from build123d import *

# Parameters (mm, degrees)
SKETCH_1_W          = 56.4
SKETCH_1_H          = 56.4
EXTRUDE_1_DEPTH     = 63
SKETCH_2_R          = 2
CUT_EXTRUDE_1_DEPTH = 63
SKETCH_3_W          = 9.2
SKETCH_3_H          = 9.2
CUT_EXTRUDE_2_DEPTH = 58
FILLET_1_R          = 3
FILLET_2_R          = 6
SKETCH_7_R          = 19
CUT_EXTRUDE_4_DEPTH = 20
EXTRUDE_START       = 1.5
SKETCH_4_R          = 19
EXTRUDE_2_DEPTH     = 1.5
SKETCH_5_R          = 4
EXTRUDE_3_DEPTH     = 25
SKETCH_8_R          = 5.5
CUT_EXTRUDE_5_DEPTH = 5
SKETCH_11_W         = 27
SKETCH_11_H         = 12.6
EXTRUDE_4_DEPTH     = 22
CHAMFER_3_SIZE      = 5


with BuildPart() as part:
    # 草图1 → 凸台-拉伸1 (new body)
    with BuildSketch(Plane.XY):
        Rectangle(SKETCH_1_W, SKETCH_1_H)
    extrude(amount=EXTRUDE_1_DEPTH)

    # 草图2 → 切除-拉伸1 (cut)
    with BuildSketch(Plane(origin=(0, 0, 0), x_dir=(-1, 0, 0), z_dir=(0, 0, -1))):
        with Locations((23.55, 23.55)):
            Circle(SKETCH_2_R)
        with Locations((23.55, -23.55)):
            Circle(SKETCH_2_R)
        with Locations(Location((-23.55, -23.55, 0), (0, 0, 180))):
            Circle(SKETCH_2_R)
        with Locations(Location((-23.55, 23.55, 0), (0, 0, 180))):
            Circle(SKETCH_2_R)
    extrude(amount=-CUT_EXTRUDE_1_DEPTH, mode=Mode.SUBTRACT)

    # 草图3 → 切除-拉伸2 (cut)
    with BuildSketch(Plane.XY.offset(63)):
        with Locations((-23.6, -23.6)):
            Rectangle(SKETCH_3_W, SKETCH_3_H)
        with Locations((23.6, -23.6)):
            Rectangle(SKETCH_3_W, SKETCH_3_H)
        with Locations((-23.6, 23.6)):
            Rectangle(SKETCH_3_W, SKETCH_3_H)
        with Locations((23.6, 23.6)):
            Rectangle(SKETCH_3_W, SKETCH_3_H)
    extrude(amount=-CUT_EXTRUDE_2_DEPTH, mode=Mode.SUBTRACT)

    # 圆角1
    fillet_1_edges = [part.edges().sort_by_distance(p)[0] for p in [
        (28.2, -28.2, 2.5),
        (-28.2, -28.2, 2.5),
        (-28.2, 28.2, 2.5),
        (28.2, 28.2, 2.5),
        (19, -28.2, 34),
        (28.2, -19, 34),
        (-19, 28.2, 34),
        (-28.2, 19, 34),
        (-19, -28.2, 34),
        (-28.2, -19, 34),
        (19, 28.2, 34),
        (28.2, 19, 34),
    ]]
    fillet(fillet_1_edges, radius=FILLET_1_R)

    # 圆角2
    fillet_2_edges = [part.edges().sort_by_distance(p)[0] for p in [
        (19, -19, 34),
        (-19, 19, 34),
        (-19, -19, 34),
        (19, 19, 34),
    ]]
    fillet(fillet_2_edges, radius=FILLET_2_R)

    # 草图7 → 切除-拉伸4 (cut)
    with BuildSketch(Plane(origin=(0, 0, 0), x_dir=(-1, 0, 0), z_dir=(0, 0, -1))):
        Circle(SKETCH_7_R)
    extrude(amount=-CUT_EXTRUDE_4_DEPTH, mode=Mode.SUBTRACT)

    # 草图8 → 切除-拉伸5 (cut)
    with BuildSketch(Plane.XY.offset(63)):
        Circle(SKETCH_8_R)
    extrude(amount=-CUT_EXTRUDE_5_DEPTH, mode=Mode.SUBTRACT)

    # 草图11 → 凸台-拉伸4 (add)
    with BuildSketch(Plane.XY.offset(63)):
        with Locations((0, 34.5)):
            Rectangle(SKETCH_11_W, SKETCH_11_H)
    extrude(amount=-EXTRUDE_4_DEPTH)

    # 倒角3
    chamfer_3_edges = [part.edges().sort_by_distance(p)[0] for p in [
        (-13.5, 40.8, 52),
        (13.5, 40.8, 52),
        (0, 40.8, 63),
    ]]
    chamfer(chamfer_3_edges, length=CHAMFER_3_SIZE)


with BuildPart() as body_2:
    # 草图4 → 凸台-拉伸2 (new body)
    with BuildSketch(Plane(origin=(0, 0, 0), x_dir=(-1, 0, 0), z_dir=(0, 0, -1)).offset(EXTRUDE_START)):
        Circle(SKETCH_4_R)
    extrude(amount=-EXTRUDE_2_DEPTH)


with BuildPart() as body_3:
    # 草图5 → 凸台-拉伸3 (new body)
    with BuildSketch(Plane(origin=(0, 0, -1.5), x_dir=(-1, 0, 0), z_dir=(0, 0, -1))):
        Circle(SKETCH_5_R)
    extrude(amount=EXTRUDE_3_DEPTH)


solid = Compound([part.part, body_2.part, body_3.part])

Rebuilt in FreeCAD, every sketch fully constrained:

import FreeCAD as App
import Part
import Sketcher
Q = App.Units.Quantity


def edges_at(feature, points):
    """Names of the edges that pass closest to the given points."""
    edges = feature.Shape.Edges
    near = lambda p: min(range(len(edges)), key=lambda i: edges[i].distToShape(Part.Vertex(*p))[0])
    return sorted({f"Edge{near(p) + 1}" for p in points})

doc = App.newDocument("Part")
body = doc.addObject("PartDesign::Body", "Body")

# Sketch on XY plane
sketch1 = body.newObject("Sketcher::SketchObject", "Sketch")
sketch1.AttachmentSupport = (doc.getObject("XY_Plane"), [""])
sketch1.MapMode = "FlatFace"
sketch1.addGeometry([
    Part.LineSegment(App.Vector(-28.2, 28.2, 0), App.Vector(-28.2, -28.2, 0)),
    Part.LineSegment(App.Vector(-28.2, -28.2, 0), App.Vector(28.2, -28.2, 0)),
    Part.LineSegment(App.Vector(28.2, -28.2, 0), App.Vector(28.2, 28.2, 0)),
    Part.LineSegment(App.Vector(28.2, 28.2, 0), App.Vector(-28.2, 28.2, 0)),
], False)
sketch1.addConstraint([
    Sketcher.Constraint("Coincident", 0, 2, 1, 1),
    Sketcher.Constraint("Coincident", 1, 2, 2, 1),
    Sketcher.Constraint("Coincident", 2, 2, 3, 1),
    Sketcher.Constraint("Coincident", 3, 2, 0, 1),
    Sketcher.Constraint("Vertical", 0),
    Sketcher.Constraint("Horizontal", 1),
    Sketcher.Constraint("Vertical", 2),
    Sketcher.Constraint("Horizontal", 3),
    Sketcher.Constraint("Symmetric", 0, 2, 2, 2, -1, 1),
    Sketcher.Constraint("Equal", 3, 0),
    Sketcher.Constraint("DistanceX", 1, 1, 1, 2, Q("56.4 mm")),
])
pad1 = body.newObject("PartDesign::Pad", "Pad")
pad1.Profile = sketch1
pad1.Length = 63

# Sketch on XY plane
sketch2 = body.newObject("Sketcher::SketchObject", "Sketch001")
sketch2.AttachmentSupport = (doc.getObject("XY_Plane"), [""])
sketch2.MapMode = "FlatFace"
sketch2.addGeometry([
    Part.Circle(App.Vector(-23.55, 23.55, 0), App.Vector(0, 0, 1), 2),
    Part.Circle(App.Vector(-23.55, -23.55, 0), App.Vector(0, 0, 1), 2),
    Part.Circle(App.Vector(23.55, -23.55, 0), App.Vector(0, 0, 1), 2),
    Part.Circle(App.Vector(23.55, 23.55, 0), App.Vector(0, 0, 1), 2),
], False)
sketch2.addConstraint([
    Sketcher.Constraint("Equal", 0, 1),
    Sketcher.Constraint("Equal", 1, 2),
    Sketcher.Constraint("Equal", 2, 3),
    Sketcher.Constraint("Symmetric", 0, 3, 2, 3, -1, 1),
    Sketcher.Constraint("Symmetric", 1, 3, 3, 3, -1, 1),
    Sketcher.Constraint("Symmetric", 1, 3, 2, 3, -2),
    Sketcher.Constraint("Diameter", 0, Q("4 mm")),
    Sketcher.Constraint("DistanceY", 1, 3, 0, 3, Q("47.1 mm")),
    Sketcher.Constraint("DistanceX", 1, 3, 2, 3, Q("47.1 mm")),
])
pocket1 = body.newObject("PartDesign::Pocket", "Pocket")
pocket1.Profile = sketch2
pocket1.Length = 63
pocket1.Reversed = True

# Sketch on XY plane
sketch3 = body.newObject("Sketcher::SketchObject", "Sketch002")
sketch3.AttachmentSupport = (doc.getObject("XY_Plane"), [""])
sketch3.MapMode = "FlatFace"
sketch3.AttachmentOffset = App.Placement(App.Vector(0, 0, 63), App.Rotation())
sketch3.addGeometry([
    Part.LineSegment(App.Vector(-28.2, -19, 0), App.Vector(-28.2, -28.2, 0)),  # 0
    Part.LineSegment(App.Vector(-28.2, -28.2, 0), App.Vector(-19, -28.2, 0)),  # 1
    Part.LineSegment(App.Vector(-19, -28.2, 0), App.Vector(-19, -19, 0)),  # 2
    Part.LineSegment(App.Vector(-19, -19, 0), App.Vector(-28.2, -19, 0)),  # 3
    Part.LineSegment(App.Vector(19, -19, 0), App.Vector(19, -28.2, 0)),  # 4
    Part.LineSegment(App.Vector(19, -28.2, 0), App.Vector(28.2, -28.2, 0)),  # 5
    Part.LineSegment(App.Vector(28.2, -28.2, 0), App.Vector(28.2, -19, 0)),  # 6
    Part.LineSegment(App.Vector(28.2, -19, 0), App.Vector(19, -19, 0)),  # 7
    Part.LineSegment(App.Vector(-28.2, 28.2, 0), App.Vector(-28.2, 19, 0)),  # 8
    Part.LineSegment(App.Vector(-28.2, 19, 0), App.Vector(-19, 19, 0)),  # 9
    Part.LineSegment(App.Vector(-19, 19, 0), App.Vector(-19, 28.2, 0)),  # 10
    Part.LineSegment(App.Vector(-19, 28.2, 0), App.Vector(-28.2, 28.2, 0)),  # 11
    Part.LineSegment(App.Vector(19, 28.2, 0), App.Vector(19, 19, 0)),  # 12
    Part.LineSegment(App.Vector(19, 19, 0), App.Vector(28.2, 19, 0)),  # 13
    Part.LineSegment(App.Vector(28.2, 19, 0), App.Vector(28.2, 28.2, 0)),  # 14
    Part.LineSegment(App.Vector(28.2, 28.2, 0), App.Vector(19, 28.2, 0)),  # 15
], False)
sketch3.addConstraint([
    Sketcher.Constraint("Coincident", 0, 2, 1, 1),
    Sketcher.Constraint("Coincident", 1, 2, 2, 1),
    Sketcher.Constraint("Coincident", 2, 2, 3, 1),
    Sketcher.Constraint("Coincident", 3, 2, 0, 1),
    Sketcher.Constraint("Coincident", 4, 2, 5, 1),
    Sketcher.Constraint("Coincident", 5, 2, 6, 1),
    Sketcher.Constraint("Coincident", 6, 2, 7, 1),
    Sketcher.Constraint("Coincident", 7, 2, 4, 1),
    Sketcher.Constraint("Coincident", 8, 2, 9, 1),
    Sketcher.Constraint("Coincident", 9, 2, 10, 1),
    Sketcher.Constraint("Coincident", 10, 2, 11, 1),
    Sketcher.Constraint("Coincident", 11, 2, 8, 1),
    Sketcher.Constraint("Coincident", 12, 2, 13, 1),
    Sketcher.Constraint("Coincident", 13, 2, 14, 1),
    Sketcher.Constraint("Coincident", 14, 2, 15, 1),
    Sketcher.Constraint("Coincident", 15, 2, 12, 1),
    Sketcher.Constraint("Vertical", 0),
    Sketcher.Constraint("Horizontal", 1),
    Sketcher.Constraint("Vertical", 2),
    Sketcher.Constraint("Horizontal", 3),
    Sketcher.Constraint("Vertical", 4),
    Sketcher.Constraint("Horizontal", 5),
    Sketcher.Constraint("Vertical", 6),
    Sketcher.Constraint("Horizontal", 7),
    Sketcher.Constraint("Vertical", 8),
    Sketcher.Constraint("Horizontal", 9),
    Sketcher.Constraint("Vertical", 10),
    Sketcher.Constraint("Horizontal", 11),
    Sketcher.Constraint("Vertical", 12),
    Sketcher.Constraint("Horizontal", 13),
    Sketcher.Constraint("Vertical", 14),
    Sketcher.Constraint("Horizontal", 15),
    Sketcher.Constraint("Symmetric", 6, 2, 8, 2, -1, 1),
    Sketcher.Constraint("Symmetric", 4, 2, 10, 2, -1, 1),
    Sketcher.Constraint("Symmetric", 2, 2, 12, 2, -1, 1),
    Sketcher.Constraint("Symmetric", 0, 2, 14, 2, -1, 1),
    Sketcher.Constraint("Symmetric", 1, 2, 4, 2, -2),
    Sketcher.Constraint("Symmetric", 3, 2, 6, 2, -2),
    Sketcher.Constraint("Equal", 15, 0),
    Sketcher.Constraint("DistanceX", 1, 1, 1, 2, Q("9.2 mm")),
    Sketcher.Constraint("DistanceX", 1, 2, -1, 1, Q("19 mm")),
    Sketcher.Constraint("DistanceY", 2, 2, -1, 1, Q("19 mm")),
])
pocket2 = body.newObject("PartDesign::Pocket", "Pocket001")
pocket2.Profile = sketch3
pocket2.Length = 58
doc.recompute()

fillet = body.newObject("PartDesign::Fillet", "Fillet")
fillet.Base = (pocket2, edges_at(pocket2, [
    (28.2, -28.2, 2.5),
    (-28.2, -28.2, 2.5),
    (-28.2, 28.2, 2.5),
    (28.2, 28.2, 2.5),
    (19, -28.2, 34),
    (28.2, -19, 34),
    (-19, 28.2, 34),
    (-28.2, 19, 34),
    (-19, -28.2, 34),
    (-28.2, -19, 34),
    (19, 28.2, 34),
    (28.2, 19, 34),
]))
fillet.Radius = 3
doc.recompute()

fillet2 = body.newObject("PartDesign::Fillet", "Fillet001")
fillet2.Base = (fillet, edges_at(fillet, [
    (19, -19, 34),
    (-19, 19, 34),
    (-19, -19, 34),
    (19, 19, 34),
]))
fillet2.Radius = 6

# Sketch on XY plane
sketch4 = body.newObject("Sketcher::SketchObject", "Sketch003")
sketch4.AttachmentSupport = (doc.getObject("XY_Plane"), [""])
sketch4.MapMode = "FlatFace"
sketch4.addGeometry(Part.Circle(App.Vector(0, 0, 0), App.Vector(0, 0, 1), 19), False)
sketch4.addConstraint([
    Sketcher.Constraint("Coincident", 0, 3, -1, 1),
    Sketcher.Constraint("Diameter", 0, Q("38 mm")),
])
pocket3 = body.newObject("PartDesign::Pocket", "Pocket002")
pocket3.Profile = sketch4
pocket3.Length = 20
pocket3.Reversed = True

# Sketch on XY plane
sketch5 = body.newObject("Sketcher::SketchObject", "Sketch004")
sketch5.AttachmentSupport = (doc.getObject("XY_Plane"), [""])
sketch5.MapMode = "FlatFace"
sketch5.AttachmentOffset = App.Placement(App.Vector(0, 0, 63), App.Rotation())
sketch5.addGeometry(Part.Circle(App.Vector(0, 0, 0), App.Vector(0, 0, 1), 5.5), False)
sketch5.addConstraint([
    Sketcher.Constraint("Coincident", 0, 3, -1, 1),
    Sketcher.Constraint("Diameter", 0, Q("11 mm")),
])
pocket4 = body.newObject("PartDesign::Pocket", "Pocket003")
pocket4.Profile = sketch5
pocket4.Length = 5

# Sketch on XY plane
sketch6 = body.newObject("Sketcher::SketchObject", "Sketch005")
sketch6.AttachmentSupport = (doc.getObject("XY_Plane"), [""])
sketch6.MapMode = "FlatFace"
sketch6.AttachmentOffset = App.Placement(App.Vector(0, 0, 63), App.Rotation())
sketch6.addGeometry([
    Part.LineSegment(App.Vector(-13.5, 40.8, 0), App.Vector(-13.5, 28.2, 0)),
    Part.LineSegment(App.Vector(-13.5, 28.2, 0), App.Vector(13.5, 28.2, 0)),
    Part.LineSegment(App.Vector(13.5, 28.2, 0), App.Vector(13.5, 40.8, 0)),
    Part.LineSegment(App.Vector(13.5, 40.8, 0), App.Vector(-13.5, 40.8, 0)),
], False)
sketch6.addConstraint([
    Sketcher.Constraint("Coincident", 0, 2, 1, 1),
    Sketcher.Constraint("Coincident", 1, 2, 2, 1),
    Sketcher.Constraint("Coincident", 2, 2, 3, 1),
    Sketcher.Constraint("Coincident", 3, 2, 0, 1),
    Sketcher.Constraint("Vertical", 0),
    Sketcher.Constraint("Horizontal", 1),
    Sketcher.Constraint("Vertical", 2),
    Sketcher.Constraint("Horizontal", 3),
    Sketcher.Constraint("DistanceX", 1, 1, 1, 2, Q("27 mm")),
    Sketcher.Constraint("DistanceY", 0, 2, 0, 1, Q("12.6 mm")),
    Sketcher.Constraint("DistanceX", 0, 2, -1, 1, Q("13.5 mm")),
    Sketcher.Constraint("DistanceY", -1, 1, 0, 2, Q("28.2 mm")),
])
pad2 = body.newObject("PartDesign::Pad", "Pad001")
pad2.Profile = sketch6
pad2.Length = 22
pad2.Reversed = True
doc.recompute()

chamfer = body.newObject("PartDesign::Chamfer", "Chamfer")
chamfer.Base = (pad2, edges_at(pad2, [(-13.5, 40.8, 52), (13.5, 40.8, 52), (0, 40.8, 63)]))
chamfer.Size = 5
body2 = doc.addObject("PartDesign::Body", "Body001")

# Sketch on XY plane
sketch7 = body2.newObject("Sketcher::SketchObject", "Sketch006")
sketch7.AttachmentSupport = (doc.getObject("XY_Plane001"), [""])
sketch7.MapMode = "FlatFace"
sketch7.AttachmentOffset = App.Placement(App.Vector(0, 0, -1.5), App.Rotation())
sketch7.addGeometry(Part.Circle(App.Vector(0, 0, 0), App.Vector(0, 0, 1), 19), False)
sketch7.addConstraint([
    Sketcher.Constraint("Coincident", 0, 3, -1, 1),
    Sketcher.Constraint("Diameter", 0, Q("38 mm")),
])
pad3 = body2.newObject("PartDesign::Pad", "Pad002")
pad3.Profile = sketch7
pad3.Length = 1.5
body3 = doc.addObject("PartDesign::Body", "Body002")

# Sketch on XY plane
sketch8 = body3.newObject("Sketcher::SketchObject", "Sketch007")
sketch8.AttachmentSupport = (doc.getObject("XY_Plane002"), [""])
sketch8.MapMode = "FlatFace"
sketch8.AttachmentOffset = App.Placement(App.Vector(0, 0, -1.5), App.Rotation())
sketch8.addGeometry(Part.Circle(App.Vector(0, 0, 0), App.Vector(0, 0, 1), 4), False)
sketch8.addConstraint([
    Sketcher.Constraint("Coincident", 0, 3, -1, 1),
    Sketcher.Constraint("Diameter", 0, Q("8 mm")),
])
pad4 = body3.newObject("PartDesign::Pad", "Pad003")
pad4.Profile = sketch8
pad4.Length = 25
pad4.Reversed = True

doc.recompute()
